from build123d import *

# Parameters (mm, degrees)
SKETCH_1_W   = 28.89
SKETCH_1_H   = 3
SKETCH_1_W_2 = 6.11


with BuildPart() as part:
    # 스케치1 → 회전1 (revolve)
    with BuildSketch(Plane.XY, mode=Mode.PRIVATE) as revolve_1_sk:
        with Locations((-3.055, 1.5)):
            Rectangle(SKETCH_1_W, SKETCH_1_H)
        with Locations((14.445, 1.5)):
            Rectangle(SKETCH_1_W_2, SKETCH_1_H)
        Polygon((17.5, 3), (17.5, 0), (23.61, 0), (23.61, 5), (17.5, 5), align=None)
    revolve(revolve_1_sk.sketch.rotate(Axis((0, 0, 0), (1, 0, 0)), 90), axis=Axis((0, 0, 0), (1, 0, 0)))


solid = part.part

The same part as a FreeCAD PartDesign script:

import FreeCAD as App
import Part
import Sketcher

V = App.Vector

doc = App.newDocument("Part")
body = doc.addObject("PartDesign::Body", "Body")

# Sketch on XY plane
sketch1 = body.newObject("Sketcher::SketchObject", "Sketch")
sketch1.AttachmentSupport = (doc.getObject("XY_Plane"), [""])
sketch1.MapMode = "FlatFace"
sketch1.addGeometry([
    Part.LineSegment(V(-17.5, 3, 0), V(-17.5, 0, 0)),  # 0
    Part.LineSegment(V(-17.5, 0, 0), V(23.6, 0, 0)),  # 1
    Part.LineSegment(V(23.6, 0, 0), V(23.6, 5, 0)),  # 2
    Part.LineSegment(V(23.6, 5, 0), V(17.5, 5, 0)),  # 3
    Part.LineSegment(V(17.5, 5, 0), V(17.5, 3, 0)),  # 4
    Part.LineSegment(V(17.5, 3, 0), V(-17.5, 3, 0)),  # 5
], False)
sketch1.addConstraint([
    Sketcher.Constraint("Coincident", 0, 2, 1, 1),
    Sketcher.Constraint("Coincident", 1, 2, 2, 1),
    Sketcher.Constraint("Coincident", 2, 2, 3, 1),
    Sketcher.Constraint("Coincident", 3, 2, 4, 1),
    Sketcher.Constraint("Coincident", 4, 2, 5, 1),
    Sketcher.Constraint("Coincident", 5, 2, 0, 1),
    Sketcher.Constraint("Vertical", 0),
    Sketcher.Constraint("Horizontal", 1),
    Sketcher.Constraint("Vertical", 2),
    Sketcher.Constraint("Horizontal", 3),
    Sketcher.Constraint("Vertical", 4),
    Sketcher.Constraint("Horizontal", 5),
    Sketcher.Constraint("PointOnObject", 0, 2, -1),
    Sketcher.Constraint("DistanceX", 5, 2, 5, 1, 35.0),
    Sketcher.Constraint("DistanceY", 0, 2, 0, 1, 3.0),
    Sketcher.Constraint("DistanceY", 2, 1, 2, 2, 5.0),
    Sketcher.Constraint("DistanceX", 1, 1, 1, 2, 41.11),
    Sketcher.Constraint("DistanceX", 0, 2, -1, 1, 17.5),
])
revolution = body.newObject("PartDesign::Revolution", "Revolution")
revolution.Profile = sketch1
revolution.ReferenceAxis = (sketch1, ["H_Axis"])
revolution.Angle = 360

doc.recompute()
